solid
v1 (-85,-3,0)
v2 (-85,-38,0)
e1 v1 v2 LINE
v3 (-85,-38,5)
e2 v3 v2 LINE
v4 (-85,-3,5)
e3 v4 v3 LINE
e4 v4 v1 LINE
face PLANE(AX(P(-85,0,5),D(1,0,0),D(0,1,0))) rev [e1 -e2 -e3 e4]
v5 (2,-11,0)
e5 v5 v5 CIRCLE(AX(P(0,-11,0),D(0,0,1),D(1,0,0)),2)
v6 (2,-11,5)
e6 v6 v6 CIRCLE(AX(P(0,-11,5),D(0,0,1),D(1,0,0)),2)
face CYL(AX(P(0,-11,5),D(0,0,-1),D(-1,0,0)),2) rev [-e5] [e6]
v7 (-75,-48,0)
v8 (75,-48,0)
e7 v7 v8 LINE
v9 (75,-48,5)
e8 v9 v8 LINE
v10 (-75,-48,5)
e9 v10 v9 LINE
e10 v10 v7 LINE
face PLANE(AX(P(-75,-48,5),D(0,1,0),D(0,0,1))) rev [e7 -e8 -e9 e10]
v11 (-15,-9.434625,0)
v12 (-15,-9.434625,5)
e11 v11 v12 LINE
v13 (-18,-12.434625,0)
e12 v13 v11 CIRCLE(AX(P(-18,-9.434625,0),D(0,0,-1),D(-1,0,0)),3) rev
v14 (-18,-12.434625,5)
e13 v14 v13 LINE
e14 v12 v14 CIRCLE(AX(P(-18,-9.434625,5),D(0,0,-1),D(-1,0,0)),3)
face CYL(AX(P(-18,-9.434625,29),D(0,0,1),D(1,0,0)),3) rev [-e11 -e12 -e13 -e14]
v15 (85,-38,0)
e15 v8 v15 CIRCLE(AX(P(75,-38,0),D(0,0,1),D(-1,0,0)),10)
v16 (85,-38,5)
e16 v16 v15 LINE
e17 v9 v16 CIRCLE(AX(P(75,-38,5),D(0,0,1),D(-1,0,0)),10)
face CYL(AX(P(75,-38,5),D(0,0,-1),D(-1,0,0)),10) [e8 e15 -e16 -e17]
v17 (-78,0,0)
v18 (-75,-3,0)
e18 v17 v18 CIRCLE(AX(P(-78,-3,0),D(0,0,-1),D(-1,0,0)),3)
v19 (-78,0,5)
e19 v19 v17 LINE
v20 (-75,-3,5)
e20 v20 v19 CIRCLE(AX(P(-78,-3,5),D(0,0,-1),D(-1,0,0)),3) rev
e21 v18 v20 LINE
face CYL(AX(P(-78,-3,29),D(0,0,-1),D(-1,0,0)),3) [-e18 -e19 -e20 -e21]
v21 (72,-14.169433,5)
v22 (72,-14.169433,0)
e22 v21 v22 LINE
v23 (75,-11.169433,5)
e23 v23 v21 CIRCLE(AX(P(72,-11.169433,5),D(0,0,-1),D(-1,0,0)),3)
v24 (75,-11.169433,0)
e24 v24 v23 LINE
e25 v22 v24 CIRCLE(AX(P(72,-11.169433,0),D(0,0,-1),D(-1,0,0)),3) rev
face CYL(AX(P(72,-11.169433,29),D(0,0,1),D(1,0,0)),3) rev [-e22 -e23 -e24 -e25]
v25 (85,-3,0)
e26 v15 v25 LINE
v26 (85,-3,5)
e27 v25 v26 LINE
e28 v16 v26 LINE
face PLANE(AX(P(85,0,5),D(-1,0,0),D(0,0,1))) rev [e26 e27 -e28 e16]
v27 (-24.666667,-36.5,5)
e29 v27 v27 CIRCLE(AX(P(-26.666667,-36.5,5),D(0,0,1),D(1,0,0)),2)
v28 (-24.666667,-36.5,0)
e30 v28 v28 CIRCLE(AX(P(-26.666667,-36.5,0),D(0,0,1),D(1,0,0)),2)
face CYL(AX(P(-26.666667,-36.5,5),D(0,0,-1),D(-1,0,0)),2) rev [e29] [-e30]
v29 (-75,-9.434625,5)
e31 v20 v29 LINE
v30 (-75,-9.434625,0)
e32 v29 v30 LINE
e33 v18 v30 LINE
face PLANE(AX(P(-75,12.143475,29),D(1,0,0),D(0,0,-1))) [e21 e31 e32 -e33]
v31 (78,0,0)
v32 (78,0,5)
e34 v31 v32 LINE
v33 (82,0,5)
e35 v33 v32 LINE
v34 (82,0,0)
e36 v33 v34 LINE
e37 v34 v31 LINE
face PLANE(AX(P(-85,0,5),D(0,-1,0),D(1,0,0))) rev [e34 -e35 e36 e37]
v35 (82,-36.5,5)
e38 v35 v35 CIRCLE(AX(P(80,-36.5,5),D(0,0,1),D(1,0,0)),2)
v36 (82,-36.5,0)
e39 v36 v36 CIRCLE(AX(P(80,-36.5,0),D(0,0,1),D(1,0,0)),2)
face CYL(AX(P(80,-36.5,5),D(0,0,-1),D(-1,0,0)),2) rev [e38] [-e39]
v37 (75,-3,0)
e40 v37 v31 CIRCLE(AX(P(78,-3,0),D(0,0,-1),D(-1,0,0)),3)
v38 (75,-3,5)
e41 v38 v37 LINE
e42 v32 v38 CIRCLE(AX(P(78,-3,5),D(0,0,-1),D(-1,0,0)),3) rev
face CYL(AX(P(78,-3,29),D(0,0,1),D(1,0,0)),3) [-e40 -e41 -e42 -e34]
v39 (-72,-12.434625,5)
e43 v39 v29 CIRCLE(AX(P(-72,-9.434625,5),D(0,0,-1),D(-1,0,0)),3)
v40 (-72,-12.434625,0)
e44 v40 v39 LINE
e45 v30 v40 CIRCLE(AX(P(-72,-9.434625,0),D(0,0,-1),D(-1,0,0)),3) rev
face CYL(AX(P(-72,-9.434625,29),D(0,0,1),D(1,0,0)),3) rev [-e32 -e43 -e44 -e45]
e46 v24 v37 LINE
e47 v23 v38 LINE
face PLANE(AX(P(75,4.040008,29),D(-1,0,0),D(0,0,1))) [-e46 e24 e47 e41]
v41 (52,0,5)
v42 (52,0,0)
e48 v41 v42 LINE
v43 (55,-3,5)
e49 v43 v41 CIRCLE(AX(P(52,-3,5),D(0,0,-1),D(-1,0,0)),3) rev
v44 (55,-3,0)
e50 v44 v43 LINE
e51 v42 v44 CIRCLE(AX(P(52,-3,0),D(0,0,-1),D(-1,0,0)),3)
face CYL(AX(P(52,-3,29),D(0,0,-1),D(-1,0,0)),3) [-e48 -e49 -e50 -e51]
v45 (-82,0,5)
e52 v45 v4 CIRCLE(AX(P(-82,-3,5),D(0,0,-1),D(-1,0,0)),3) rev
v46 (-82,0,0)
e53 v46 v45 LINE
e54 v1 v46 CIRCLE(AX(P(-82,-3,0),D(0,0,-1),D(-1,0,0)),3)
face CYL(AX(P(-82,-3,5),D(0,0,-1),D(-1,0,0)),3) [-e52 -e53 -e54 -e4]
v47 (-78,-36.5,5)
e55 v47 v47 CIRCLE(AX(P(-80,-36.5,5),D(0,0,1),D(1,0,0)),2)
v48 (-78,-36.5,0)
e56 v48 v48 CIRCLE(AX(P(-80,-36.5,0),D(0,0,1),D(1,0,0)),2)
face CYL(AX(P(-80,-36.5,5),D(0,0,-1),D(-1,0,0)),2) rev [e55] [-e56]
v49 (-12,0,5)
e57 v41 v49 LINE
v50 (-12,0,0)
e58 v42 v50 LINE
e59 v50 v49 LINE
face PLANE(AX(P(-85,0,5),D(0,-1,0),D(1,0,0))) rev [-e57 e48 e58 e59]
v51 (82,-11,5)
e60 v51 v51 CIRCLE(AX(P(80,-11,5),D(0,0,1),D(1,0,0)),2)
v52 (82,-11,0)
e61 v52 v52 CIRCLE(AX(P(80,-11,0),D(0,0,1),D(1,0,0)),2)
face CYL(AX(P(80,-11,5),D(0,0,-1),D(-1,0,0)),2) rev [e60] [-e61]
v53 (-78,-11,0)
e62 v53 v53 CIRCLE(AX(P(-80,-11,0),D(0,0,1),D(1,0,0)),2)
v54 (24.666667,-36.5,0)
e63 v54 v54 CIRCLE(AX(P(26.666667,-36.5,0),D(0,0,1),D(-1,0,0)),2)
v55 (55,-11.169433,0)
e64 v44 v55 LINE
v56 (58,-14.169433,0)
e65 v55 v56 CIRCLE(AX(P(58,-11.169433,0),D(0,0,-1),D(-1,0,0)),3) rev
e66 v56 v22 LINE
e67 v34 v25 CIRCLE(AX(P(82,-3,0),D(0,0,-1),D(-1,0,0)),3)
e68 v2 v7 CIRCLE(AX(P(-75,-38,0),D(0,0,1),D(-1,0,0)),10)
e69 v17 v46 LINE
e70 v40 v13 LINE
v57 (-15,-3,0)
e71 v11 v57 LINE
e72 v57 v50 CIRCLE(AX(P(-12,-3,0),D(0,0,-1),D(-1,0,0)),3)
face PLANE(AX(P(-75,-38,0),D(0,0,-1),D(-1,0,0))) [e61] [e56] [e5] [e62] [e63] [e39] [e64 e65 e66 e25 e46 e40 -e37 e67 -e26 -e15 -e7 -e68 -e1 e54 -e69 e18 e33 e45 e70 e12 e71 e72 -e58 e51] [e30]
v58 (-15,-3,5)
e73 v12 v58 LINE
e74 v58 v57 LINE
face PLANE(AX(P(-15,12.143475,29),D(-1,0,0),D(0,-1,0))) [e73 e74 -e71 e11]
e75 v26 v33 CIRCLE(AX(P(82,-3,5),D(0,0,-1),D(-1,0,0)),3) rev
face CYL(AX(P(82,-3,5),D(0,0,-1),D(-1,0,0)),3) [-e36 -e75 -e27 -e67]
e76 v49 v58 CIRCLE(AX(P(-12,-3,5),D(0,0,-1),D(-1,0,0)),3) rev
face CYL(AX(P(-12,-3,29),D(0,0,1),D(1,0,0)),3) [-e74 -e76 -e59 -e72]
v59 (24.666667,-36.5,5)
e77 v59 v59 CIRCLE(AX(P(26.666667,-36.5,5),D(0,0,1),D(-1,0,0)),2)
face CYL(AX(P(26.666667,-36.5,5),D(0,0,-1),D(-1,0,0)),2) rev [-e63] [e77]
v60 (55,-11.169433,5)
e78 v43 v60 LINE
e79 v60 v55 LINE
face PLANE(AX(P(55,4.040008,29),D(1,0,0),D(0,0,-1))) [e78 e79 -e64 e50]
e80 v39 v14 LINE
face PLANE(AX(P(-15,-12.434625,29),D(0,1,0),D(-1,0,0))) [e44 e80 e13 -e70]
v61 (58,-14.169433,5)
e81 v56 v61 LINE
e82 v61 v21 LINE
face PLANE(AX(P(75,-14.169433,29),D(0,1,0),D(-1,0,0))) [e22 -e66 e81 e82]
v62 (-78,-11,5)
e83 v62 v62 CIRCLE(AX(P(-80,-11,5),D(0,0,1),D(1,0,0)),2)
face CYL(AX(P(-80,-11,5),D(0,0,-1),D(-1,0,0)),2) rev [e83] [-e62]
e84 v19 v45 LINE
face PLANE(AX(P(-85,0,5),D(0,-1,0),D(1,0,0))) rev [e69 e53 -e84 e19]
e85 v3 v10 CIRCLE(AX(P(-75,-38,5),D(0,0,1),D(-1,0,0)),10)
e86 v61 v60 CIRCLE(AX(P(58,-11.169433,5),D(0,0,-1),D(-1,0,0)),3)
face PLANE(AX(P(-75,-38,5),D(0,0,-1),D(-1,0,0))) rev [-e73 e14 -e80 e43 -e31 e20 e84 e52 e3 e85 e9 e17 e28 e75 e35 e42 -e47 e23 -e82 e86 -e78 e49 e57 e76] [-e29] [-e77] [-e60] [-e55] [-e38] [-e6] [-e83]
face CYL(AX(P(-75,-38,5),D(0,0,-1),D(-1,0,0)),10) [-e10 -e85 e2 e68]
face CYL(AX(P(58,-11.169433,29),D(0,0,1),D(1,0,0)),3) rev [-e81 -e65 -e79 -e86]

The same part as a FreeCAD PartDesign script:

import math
import FreeCAD as App
import Part
import Sketcher


def edges_at(feature, points):
    """Names of the edges that pass closest to the given points."""
    edges = feature.Shape.Edges
    near = lambda p: min(range(len(edges)), key=lambda i: edges[i].distToShape(Part.Vertex(*p))[0])
    return sorted({f"Edge{near(p) + 1}" for p in points})


def add_polygon(sketch, points):
    """Adds a closed chain of lines whose ends are joined by coincident constraints."""
    first, n = sketch.GeometryCount, len(points)
    for a, b in zip(points, points[1:] + points[:1]):
        sketch.addGeometry(Part.LineSegment(App.Vector(*a, 0), App.Vector(*b, 0)), False)
    for i in range(n):
        sketch.addConstraint(Sketcher.Constraint("Coincident", first + i, 2, first + (i + 1) % n, 1))

doc = App.newDocument("Part")
body = doc.addObject("PartDesign::Body", "Body")

# Sketch on XY plane
sketch1 = body.newObject("Sketcher::SketchObject", "Sketch")
sketch1.AttachmentSupport = (doc.getObject("XY_Plane"), [""])
sketch1.MapMode = "FlatFace"
sketch1.addGeometry([
    Part.LineSegment(App.Vector(85, 0, 0), App.Vector(-85, 0, 0)),  # 0
    Part.LineSegment(App.Vector(-85, 0, 0), App.Vector(-85, -38, 0)),  # 1
    Part.ArcOfCircle(Part.Circle(App.Vector(-75, -38, 0), App.Vector(0, 0, 1), 10), math.radians(180), math.radians(270)),  # 2
    Part.LineSegment(App.Vector(-75, -48, 0), App.Vector(75, -48, 0)),  # 3
    Part.ArcOfCircle(Part.Circle(App.Vector(75, -38, 0), App.Vector(0, 0, 1), 10), math.radians(-90), math.radians(0)),  # 4
    Part.LineSegment(App.Vector(85, -38, 0), App.Vector(85, 0, 0)),  # 5
    Part.Circle(App.Vector(80, -36.5, 0), App.Vector(0, 0, 1), 2),  # 6
    Part.Circle(App.Vector(26.7, -36.5, 0), App.Vector(0, 0, 1), 2),  # 7
    Part.Circle(App.Vector(-26.7, -36.5, 0), App.Vector(0, 0, 1), 2),  # 8
    Part.Circle(App.Vector(-80, -36.5, 0), App.Vector(0, 0, 1), 2),  # 9
    Part.Circle(App.Vector(80, -11, 0), App.Vector(0, 0, 1), 2),  # 10
    Part.Circle(App.Vector(0, -11, 0), App.Vector(0, 0, 1), 2),  # 11
    Part.Circle(App.Vector(-80, -11, 0), App.Vector(0, 0, 1), 2),  # 12
], False)
sketch1.addConstraint([
    Sketcher.Constraint("Coincident", 0, 2, 1, 1),
    Sketcher.Constraint("Tangent", 1, 2, 2, 1),
    Sketcher.Constraint("Tangent", 2, 2, 3, 1),
    Sketcher.Constraint("Tangent", 3, 2, 4, 1),
    Sketcher.Constraint("Tangent", 4, 2, 5, 1),
    Sketcher.Constraint("Coincident", 5, 2, 0, 1),
    Sketcher.Constraint("Horizontal", 0),
    Sketcher.Constraint("Vertical", 1),
    Sketcher.Constraint("Horizontal", 3),
    Sketcher.Constraint("Vertical", 5),
    Sketcher.Constraint("Equal", 2, 4),
    Sketcher.Constraint("Equal", 6, 7),
    Sketcher.Constraint("Equal", 7, 8),
    Sketcher.Constraint("Equal", 8, 9),
    Sketcher.Constraint("Equal", 9, 10),
    Sketcher.Constraint("Equal", 10, 11),
    Sketcher.Constraint("Equal", 11, 12),
    Sketcher.Constraint("Symmetric", 0, 2, 5, 2, -1, 1),
    Sketcher.Constraint("Symmetric", 7, 3, 8, 3, -2),
    Sketcher.Constraint("Symmetric", 6, 3, 9, 3, -2),
    Sketcher.Constraint("Symmetric", 10, 3, 12, 3, -2),
    Sketcher.Constraint("PointOnObject", 11, 3, -2),
    Sketcher.Constraint("Horizontal", 6, 3, 7, 3),
    Sketcher.Constraint("Horizontal", 10, 3, 11, 3),
    Sketcher.Constraint("Vertical", 6, 3, 10, 3),
    Sketcher.Constraint("Diameter", 6, 4.0),
    Sketcher.Constraint("Radius", 2, 10.0),
    Sketcher.Constraint("DistanceX", 0, 2, 0, 1, 170.0),
    Sketcher.Constraint("DistanceY", 1, 2, 1, 1, 38.0),
    Sketcher.Constraint("DistanceX", -1, 1, 6, 3, 80.0),
    Sketcher.Constraint("DistanceY", 10, 3, -1, 1, 11.0),
    Sketcher.Constraint("DistanceY", 6, 3, -1, 1, 36.5),
    Sketcher.Constraint("DistanceX", -1, 1, 7, 3, 26.666667),
])
pad1 = body.newObject("PartDesign::Pad", "Pad")
pad1.Profile = sketch1
pad1.Length = 5

# Sketch on XY plane
sketch2 = body.newObject("Sketcher::SketchObject", "Sketch001")
sketch2.AttachmentSupport = (doc.getObject("XY_Plane"), [""])
sketch2.MapMode = "FlatFace"
add_polygon(sketch2, [(-75, 12), (-75, -12), (-15, -12), (-15, 12)])  # lines 0-3
add_polygon(sketch2, [(55, 4), (55, -14), (75, -14), (75, 4)])  # lines 4-7
sketch2.addConstraint([
    Sketcher.Constraint("Vertical", 0),
    Sketcher.Constraint("Horizontal", 1),
    Sketcher.Constraint("Vertical", 2),
    Sketcher.Constraint("Horizontal", 3),
    Sketcher.Constraint("Vertical", 4),
    Sketcher.Constraint("Horizontal", 5),
    Sketcher.Constraint("Vertical", 6),
    Sketcher.Constraint("Horizontal", 7),
    Sketcher.Constraint("DistanceX", 1, 1, 1, 2, 60.0),
    Sketcher.Constraint("DistanceX", 5, 1, 5, 2, 20.0),
    Sketcher.Constraint("DistanceX", 0, 2, -1, 1, 75.0),
    Sketcher.Constraint("DistanceX", -1, 1, 4, 2, 55.0),
    Sketcher.Constraint("DistanceY", 0, 2, 0, 1, 24.5781),
    Sketcher.Constraint("DistanceY", 4, 2, 4, 1, 18.209441),
    Sketcher.Constraint("DistanceY", 4, 2, 1, 2, 1.734808),
    Sketcher.Constraint("DistanceY", 0, 2, -1, 1, 12.434625),
])
pocket1 = body.newObject("PartDesign::Pocket", "Pocket")
pocket1.Profile = sketch2
pocket1.Length = 29
pocket1.Reversed = True
doc.recompute()

fillet = body.newObject("PartDesign::Fillet", "Fillet")
fillet.Base = (pocket1, edges_at(pocket1, [
    (-85, 0, 2.5),
    (85, 0, 2.5),
    (55, 0, 2.5),
    (75, 0, 2.5),
    (-75, 0, 2.5),
    (-15, 0, 2.5),
    (-75, -12.435, 2.5),
    (-15, -12.435, 2.5),
    (55, -14.169, 2.5),
    (75, -14.169, 2.5),
]))
fillet.Radius = 3

doc.recompute()
